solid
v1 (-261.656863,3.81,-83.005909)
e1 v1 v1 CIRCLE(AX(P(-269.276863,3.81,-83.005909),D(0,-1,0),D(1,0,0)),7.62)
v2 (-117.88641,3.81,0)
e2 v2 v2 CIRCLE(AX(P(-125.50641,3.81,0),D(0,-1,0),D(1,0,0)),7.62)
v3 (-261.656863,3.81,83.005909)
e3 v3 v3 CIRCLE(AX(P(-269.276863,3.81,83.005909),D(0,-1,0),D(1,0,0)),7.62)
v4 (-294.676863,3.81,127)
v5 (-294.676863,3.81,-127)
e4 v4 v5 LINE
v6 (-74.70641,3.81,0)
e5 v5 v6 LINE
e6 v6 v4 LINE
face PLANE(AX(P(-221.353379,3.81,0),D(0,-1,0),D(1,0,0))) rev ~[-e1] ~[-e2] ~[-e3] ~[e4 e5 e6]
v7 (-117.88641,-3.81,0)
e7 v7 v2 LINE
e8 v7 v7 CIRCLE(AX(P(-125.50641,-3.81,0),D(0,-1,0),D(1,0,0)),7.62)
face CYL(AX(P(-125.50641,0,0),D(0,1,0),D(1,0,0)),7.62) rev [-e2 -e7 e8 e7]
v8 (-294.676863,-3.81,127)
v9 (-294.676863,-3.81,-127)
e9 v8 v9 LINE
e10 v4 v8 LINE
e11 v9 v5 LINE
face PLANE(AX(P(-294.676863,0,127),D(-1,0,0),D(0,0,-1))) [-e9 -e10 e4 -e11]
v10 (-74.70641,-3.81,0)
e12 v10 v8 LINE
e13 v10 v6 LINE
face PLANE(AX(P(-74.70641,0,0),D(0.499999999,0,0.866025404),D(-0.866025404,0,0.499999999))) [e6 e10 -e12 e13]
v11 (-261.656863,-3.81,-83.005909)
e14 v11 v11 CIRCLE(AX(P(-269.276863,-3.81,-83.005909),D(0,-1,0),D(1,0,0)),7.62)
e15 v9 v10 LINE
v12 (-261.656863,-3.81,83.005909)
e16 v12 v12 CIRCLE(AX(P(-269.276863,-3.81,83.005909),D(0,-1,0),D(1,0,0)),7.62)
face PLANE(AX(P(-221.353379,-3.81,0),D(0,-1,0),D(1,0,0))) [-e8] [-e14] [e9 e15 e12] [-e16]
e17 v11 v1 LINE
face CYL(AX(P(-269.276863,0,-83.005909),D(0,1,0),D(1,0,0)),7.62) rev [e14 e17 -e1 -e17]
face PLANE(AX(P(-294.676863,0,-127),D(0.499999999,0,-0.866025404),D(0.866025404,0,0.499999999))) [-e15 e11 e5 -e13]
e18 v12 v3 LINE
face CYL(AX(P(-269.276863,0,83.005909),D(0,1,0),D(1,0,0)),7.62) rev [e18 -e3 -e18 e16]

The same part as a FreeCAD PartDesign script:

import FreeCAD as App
import Part
import Sketcher
Q = App.Units.Quantity

doc = App.newDocument("Part")
params = doc.addObject("Spreadsheet::Sheet", "Params")
for row, (alias, value) in enumerate([
    ("sketch1_diameter", "0.6 in"),
    ("sketch1_height", "10 in"),
    ("sketch1_length", "10 in"),
    ("pad1_length", "0.3 in"),
    ("sketch2_diameter", "0.6 in"),
    ("pad2_length", "0.3 in"),
], start=1):
    params.set(f"A{row}", alias)
    params.set(f"B{row}", "=" + value)
    params.setAlias(f"B{row}", alias)

body = doc.addObject("PartDesign::Body", "Body")

sketch1 = doc.addObject("Sketcher::SketchObject", "Sketch")
body.addObject(sketch1)
sketch1.AttachmentSupport = (doc.XZ_Plane, [""])
sketch1.MapMode = "FlatFace"
sketch1.addGeometry([
    Part.LineSegment(App.Vector(-75, 0, 0), App.Vector(-295, 127, 0)),
    Part.LineSegment(App.Vector(-295, 127, 0), App.Vector(-295, -127, 0)),
    Part.LineSegment(App.Vector(-295, -127, 0), App.Vector(-75, 0, 0)),
    Part.Circle(App.Vector(-269, -83, 0), App.Vector(0, 0, 1), 8),
    Part.Circle(App.Vector(-269, 83, 0), App.Vector(0, 0, 1), 8),
    Part.Circle(App.Vector(-126, 0, 0), App.Vector(0, 0, 1), 8),
], False)
sketch1.addConstraint([
    Sketcher.Constraint("Coincident", 0, 2, 1, 1),
    Sketcher.Constraint("Coincident", 1, 2, 2, 1),
    Sketcher.Constraint("Coincident", 2, 2, 0, 1),
    Sketcher.Constraint("Vertical", 1),
    Sketcher.Constraint("Equal", 3, 4),
    Sketcher.Constraint("Equal", 4, 5),
    Sketcher.Constraint("Symmetric", 3, 3, 4, 3, -1),
    Sketcher.Constraint("PointOnObject", 5, 3, -1),
    Sketcher.Constraint("PointOnObject", 2, 2, -1),
    Sketcher.Constraint("Equal", 0, 2),
    Sketcher.Constraint("Diameter", 3, Q("0.6 in")),
    Sketcher.Constraint("DistanceY", 1, 2, 1, 1, Q("10 in")),
    Sketcher.Constraint("Distance", 0, Q("10 in")),
    Sketcher.Constraint("DistanceX", 0, 2, 4, 3, Q("1 in")),
    Sketcher.Constraint("DistanceX", 5, 3, 2, 2, Q("2 in")),
    Sketcher.Constraint("DistanceY", 3, 3, -1, 1, 83.005909),
    Sketcher.Constraint("DistanceX", 5, 3, -1, 1, 125.50641),
])
sketch1.setExpression("Constraints[10]", "Params.sketch1_diameter")
sketch1.setExpression("Constraints[11]", "Params.sketch1_height")
sketch1.setExpression("Constraints[12]", "Params.sketch1_length")
pad1 = doc.addObject("PartDesign::Pad", "Pad")
body.addObject(pad1)
pad1.Profile = sketch1
pad1.setExpression("Length", "Params.pad1_length")
pad1.Midplane = True
body2 = doc.addObject("PartDesign::Body", "Body001")
body2.AllowCompound = True

sketch2 = doc.addObject("Sketcher::SketchObject", "Sketch001")
body2.addObject(sketch2)
sketch2.AttachmentSupport = (doc.getObject("XZ_Plane001"), [""])
sketch2.MapMode = "FlatFace"
sketch2.addGeometry([
    Part.Circle(App.Vector(-269, 83, 0), App.Vector(0, 0, 1), 8),
    Part.Circle(App.Vector(-126, 0, 0), App.Vector(0, 0, 1), 8),
    Part.Circle(App.Vector(-269, -83, 0), App.Vector(0, 0, 1), 8),
], False)
sketch2.addConstraint([
    Sketcher.Constraint("Equal", 0, 1),
    Sketcher.Constraint("Equal", 1, 2),
    Sketcher.Constraint("Symmetric", 0, 3, 2, 3, -1),
    Sketcher.Constraint("PointOnObject", 1, 3, -1),
    Sketcher.Constraint("Diameter", 0, Q("0.6 in")),
    Sketcher.Constraint("DistanceY", -1, 1, 0, 3, 83.005909),
    Sketcher.Constraint("DistanceX", 1, 3, -1, 1, 125.50641),
    Sketcher.Constraint("DistanceX", 0, 3, -1, 1, 269.276863),
])
sketch2.setExpression("Constraints[4]", "Params.sketch2_diameter")
pad2 = doc.addObject("PartDesign::Pad", "Pad001")
body2.addObject(pad2)
pad2.Profile = sketch2
pad2.setExpression("Length", "Params.pad2_length")
pad2.Midplane = True
doc.recompute()

boolean = doc.addObject("PartDesign::Boolean", "Boolean")
body.addObject(boolean)
boolean.Type = "Cut"
boolean.addObjects([body2])

doc.recompute()
